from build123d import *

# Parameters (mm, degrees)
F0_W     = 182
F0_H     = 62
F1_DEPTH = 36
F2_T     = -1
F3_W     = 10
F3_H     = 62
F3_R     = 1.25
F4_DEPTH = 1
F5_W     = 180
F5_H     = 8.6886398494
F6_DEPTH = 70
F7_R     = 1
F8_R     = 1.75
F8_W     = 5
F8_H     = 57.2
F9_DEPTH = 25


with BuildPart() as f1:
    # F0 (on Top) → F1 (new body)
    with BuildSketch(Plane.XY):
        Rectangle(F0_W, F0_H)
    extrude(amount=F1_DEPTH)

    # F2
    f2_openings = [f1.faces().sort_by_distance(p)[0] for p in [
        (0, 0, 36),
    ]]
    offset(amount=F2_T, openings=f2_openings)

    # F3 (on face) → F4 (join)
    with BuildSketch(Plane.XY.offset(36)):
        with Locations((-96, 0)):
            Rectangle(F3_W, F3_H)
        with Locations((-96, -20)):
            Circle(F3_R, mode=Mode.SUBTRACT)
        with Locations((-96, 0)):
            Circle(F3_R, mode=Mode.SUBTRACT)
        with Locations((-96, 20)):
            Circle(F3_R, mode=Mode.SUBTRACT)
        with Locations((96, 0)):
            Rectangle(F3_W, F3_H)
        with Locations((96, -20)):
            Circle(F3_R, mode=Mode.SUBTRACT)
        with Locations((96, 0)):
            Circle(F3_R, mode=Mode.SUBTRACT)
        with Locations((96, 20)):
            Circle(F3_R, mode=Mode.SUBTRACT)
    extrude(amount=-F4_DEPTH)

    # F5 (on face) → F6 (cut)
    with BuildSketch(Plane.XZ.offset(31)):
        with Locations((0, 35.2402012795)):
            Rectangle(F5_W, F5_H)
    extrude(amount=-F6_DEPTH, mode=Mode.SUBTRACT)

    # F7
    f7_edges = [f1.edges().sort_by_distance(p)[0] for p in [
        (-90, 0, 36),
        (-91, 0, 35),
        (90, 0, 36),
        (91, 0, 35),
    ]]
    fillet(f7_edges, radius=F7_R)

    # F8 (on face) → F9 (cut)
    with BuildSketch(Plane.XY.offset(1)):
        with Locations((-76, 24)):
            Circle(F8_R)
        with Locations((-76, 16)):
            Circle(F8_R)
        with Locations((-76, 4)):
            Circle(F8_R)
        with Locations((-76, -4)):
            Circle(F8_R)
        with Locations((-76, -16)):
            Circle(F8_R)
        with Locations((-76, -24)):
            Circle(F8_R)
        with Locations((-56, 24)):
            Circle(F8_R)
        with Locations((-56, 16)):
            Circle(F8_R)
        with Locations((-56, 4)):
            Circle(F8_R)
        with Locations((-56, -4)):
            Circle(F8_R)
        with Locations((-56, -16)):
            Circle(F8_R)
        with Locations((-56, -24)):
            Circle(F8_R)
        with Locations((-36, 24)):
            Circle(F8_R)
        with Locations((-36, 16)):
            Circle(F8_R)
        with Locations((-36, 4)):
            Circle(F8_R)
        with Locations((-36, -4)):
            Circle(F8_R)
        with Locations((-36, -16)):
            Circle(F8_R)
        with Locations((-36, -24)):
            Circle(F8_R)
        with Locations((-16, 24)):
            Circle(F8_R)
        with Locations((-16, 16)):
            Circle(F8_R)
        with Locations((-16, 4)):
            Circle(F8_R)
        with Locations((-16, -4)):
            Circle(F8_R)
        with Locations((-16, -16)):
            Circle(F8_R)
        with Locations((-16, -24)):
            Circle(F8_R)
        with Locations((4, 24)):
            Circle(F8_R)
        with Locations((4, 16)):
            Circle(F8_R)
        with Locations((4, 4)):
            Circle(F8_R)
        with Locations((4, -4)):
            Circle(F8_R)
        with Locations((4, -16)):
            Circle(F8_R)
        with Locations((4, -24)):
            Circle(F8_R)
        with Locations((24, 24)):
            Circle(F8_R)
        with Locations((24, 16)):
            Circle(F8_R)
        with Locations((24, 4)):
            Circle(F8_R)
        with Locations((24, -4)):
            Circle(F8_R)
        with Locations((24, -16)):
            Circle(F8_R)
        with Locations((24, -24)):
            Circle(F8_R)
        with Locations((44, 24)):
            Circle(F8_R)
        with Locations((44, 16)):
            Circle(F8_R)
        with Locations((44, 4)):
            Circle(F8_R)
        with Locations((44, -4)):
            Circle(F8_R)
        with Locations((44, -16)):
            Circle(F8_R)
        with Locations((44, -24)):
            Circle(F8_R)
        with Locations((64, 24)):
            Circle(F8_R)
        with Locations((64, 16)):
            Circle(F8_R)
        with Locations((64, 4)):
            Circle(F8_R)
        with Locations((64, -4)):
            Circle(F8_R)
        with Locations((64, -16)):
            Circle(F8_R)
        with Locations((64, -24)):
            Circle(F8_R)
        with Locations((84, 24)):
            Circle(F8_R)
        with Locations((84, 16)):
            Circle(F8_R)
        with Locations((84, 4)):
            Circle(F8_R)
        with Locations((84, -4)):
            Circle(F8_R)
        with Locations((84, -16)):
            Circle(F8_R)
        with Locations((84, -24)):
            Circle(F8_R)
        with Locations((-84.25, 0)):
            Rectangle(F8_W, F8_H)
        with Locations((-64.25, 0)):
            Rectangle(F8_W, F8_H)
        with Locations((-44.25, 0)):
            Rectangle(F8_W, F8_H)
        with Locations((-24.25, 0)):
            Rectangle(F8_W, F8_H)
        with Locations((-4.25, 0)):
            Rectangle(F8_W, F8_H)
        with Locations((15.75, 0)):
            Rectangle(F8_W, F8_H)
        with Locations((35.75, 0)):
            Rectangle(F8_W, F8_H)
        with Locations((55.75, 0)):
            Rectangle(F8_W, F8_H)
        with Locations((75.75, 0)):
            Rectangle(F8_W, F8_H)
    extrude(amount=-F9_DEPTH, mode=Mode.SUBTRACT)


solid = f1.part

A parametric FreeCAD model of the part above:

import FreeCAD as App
import Part
import Sketcher
from FreeCAD import Vector
Q = App.Units.Quantity


def edges_at(feature, points):
    """Names of the edges that pass closest to the given points."""
    edges = feature.Shape.Edges
    near = lambda p: min(range(len(edges)), key=lambda i: edges[i].distToShape(Part.Vertex(*p))[0])
    return sorted({f"Edge{near(p) + 1}" for p in points})


def faces_at(feature, points):
    """Names of the faces that lie closest to the given points."""
    faces = feature.Shape.Faces
    near = lambda p: min(range(len(faces)), key=lambda i: faces[i].distToShape(Part.Vertex(*p))[0])
    return sorted({f"Face{near(p) + 1}" for p in points})


def add_polygon(sketch, points):
    """Adds a closed chain of lines whose ends are joined by coincident constraints."""
    first, n = sketch.GeometryCount, len(points)
    for a, b in zip(points, points[1:] + points[:1]):
        sketch.addGeometry(Part.LineSegment(App.Vector(*a, 0), App.Vector(*b, 0)), False)
    for i in range(n):
        sketch.addConstraint(Sketcher.Constraint("Coincident", first + i, 2, first + (i + 1) % n, 1))

doc = App.newDocument("Part")
body = doc.addObject("PartDesign::Body", "Body")

# Sketch on XY plane
sketch1 = body.newObject("Sketcher::SketchObject", "Sketch")
sketch1.AttachmentSupport = (doc.getObject("XY_Plane"), [""])
sketch1.MapMode = "FlatFace"
add_polygon(sketch1, [(-91, 31), (-91, -31), (91, -31), (91, 31)])  # lines 0-3
sketch1.addConstraint([
    Sketcher.Constraint("Vertical", 0),
    Sketcher.Constraint("Horizontal", 1),
    Sketcher.Constraint("Vertical", 2),
    Sketcher.Constraint("Horizontal", 3),
    Sketcher.Constraint("Symmetric", 0, 2, 2, 2, -1, 1),
    Sketcher.Constraint("DistanceX", 1, 1, 1, 2, Q("182 mm")),
    Sketcher.Constraint("DistanceY", 0, 2, 0, 1, Q("62 mm")),
])
pad1 = body.newObject("PartDesign::Pad", "Pad")
pad1.Profile = sketch1
pad1.Length = 36
doc.recompute()

thickness = body.newObject("PartDesign::Thickness", "Thickness")
thickness.Base = (pad1, faces_at(pad1, [(0, 0, 36)]))
thickness.Value = 1
thickness.Reversed = True
thickness.Join = "Arc"

# Sketch on XY plane
sketch2 = body.newObject("Sketcher::SketchObject", "Sketch001")
sketch2.AttachmentSupport = (doc.getObject("XY_Plane"), [""])
sketch2.MapMode = "FlatFace"
sketch2.AttachmentOffset = App.Placement(Vector(0, 0, 36), App.Rotation())
add_polygon(sketch2, [(-101, 31), (-101, -31), (-91, -31), (-91, 31)])  # lines 0-3
sketch2.addGeometry(Part.Circle(Vector(-96, -20, 0), Vector(0, 0, 1), 1.25), False)  # 4
sketch2.addGeometry(Part.Circle(Vector(-96, 0, 0), Vector(0, 0, 1), 1.25), False)  # 5
sketch2.addGeometry(Part.Circle(Vector(-96, 20, 0), Vector(0, 0, 1), 1.25), False)  # 6
add_polygon(sketch2, [(91, 31), (91, -31), (101, -31), (101, 31)])  # lines 7-10
sketch2.addGeometry(Part.Circle(Vector(96, -20, 0), Vector(0, 0, 1), 1.25), False)  # 11
sketch2.addGeometry(Part.Circle(Vector(96, 0, 0), Vector(0, 0, 1), 1.25), False)  # 12
sketch2.addGeometry(Part.Circle(Vector(96, 20, 0), Vector(0, 0, 1), 1.25), False)  # 13
sketch2.addConstraint([
    Sketcher.Constraint("Vertical", 0),
    Sketcher.Constraint("Horizontal", 1),
    Sketcher.Constraint("Vertical", 2),
    Sketcher.Constraint("Horizontal", 3),
    Sketcher.Constraint("Vertical", 7),
    Sketcher.Constraint("Horizontal", 8),
    Sketcher.Constraint("Vertical", 9),
    Sketcher.Constraint("Horizontal", 10),
    Sketcher.Constraint("Equal", 4, 5),
    Sketcher.Constraint("Equal", 5, 6),
    Sketcher.Constraint("Equal", 6, 11),
    Sketcher.Constraint("Equal", 11, 12),
    Sketcher.Constraint("Equal", 12, 13),
    Sketcher.Constraint("Symmetric", 6, 3, 11, 3, -1, 1),
    Sketcher.Constraint("Symmetric", 5, 3, 12, 3, -1, 1),
    Sketcher.Constraint("Symmetric", 4, 3, 13, 3, -1, 1),
    Sketcher.Constraint("Symmetric", 2, 2, 7, 2, -1, 1),
    Sketcher.Constraint("Symmetric", 0, 2, 9, 2, -1, 1),
    Sketcher.Constraint("Symmetric", 4, 3, 11, 3, -2),
    Sketcher.Constraint("PointOnObject", 5, 3, -1),
    Sketcher.Constraint("Horizontal", 1, 2, 7, 2),
    Sketcher.Constraint("Vertical", 4, 3, 5, 3),
    Sketcher.Constraint("Diameter", 4, Q("2.5 mm")),
    Sketcher.Constraint("DistanceX", 1, 1, 1, 2, Q("10 mm")),
    Sketcher.Constraint("DistanceY", 0, 2, 0, 1, Q("62 mm")),
    Sketcher.Constraint("DistanceX", 4, 3, -1, 1, Q("96 mm")),
    Sketcher.Constraint("DistanceY", 4, 3, -1, 1, Q("20 mm")),
    Sketcher.Constraint("DistanceX", 0, 2, -1, 1, Q("101 mm")),
])
pad2 = body.newObject("PartDesign::Pad", "Pad001")
pad2.Profile = sketch2
pad2.Length = 1
pad2.Reversed = True

# Sketch on XZ plane
sketch3 = body.newObject("Sketcher::SketchObject", "Sketch002")
sketch3.AttachmentSupport = (doc.getObject("XZ_Plane"), [""])
sketch3.MapMode = "FlatFace"
sketch3.AttachmentOffset = App.Placement(Vector(0, 0, 31), App.Rotation())
add_polygon(sketch3, [(-90, 39.584521), (-90, 30.895881), (90, 30.895881), (90, 39.584521)])  # lines 0-3
sketch3.addConstraint([
    Sketcher.Constraint("Vertical", 0),
    Sketcher.Constraint("Horizontal", 1),
    Sketcher.Constraint("Vertical", 2),
    Sketcher.Constraint("Horizontal", 3),
    Sketcher.Constraint("DistanceX", 1, 1, 1, 2, Q("180 mm")),
    Sketcher.Constraint("DistanceX", 0, 2, -1, 1, Q("90 mm")),
    Sketcher.Constraint("DistanceY", 0, 2, 0, 1, Q("8.68864 mm")),
    Sketcher.Constraint("DistanceY", -1, 1, 0, 2, Q("30.895881 mm")),
])
pocket1 = body.newObject("PartDesign::Pocket", "Pocket")
pocket1.Profile = sketch3
pocket1.Length = 70
doc.recompute()

fillet = body.newObject("PartDesign::Fillet", "Fillet")
fillet.Base = (pocket1, edges_at(pocket1, [
    (-90, 0, 36),
    (-91, 0, 35),
    (90, 0, 36),
    (91, 0, 35),
]))
fillet.Radius = 1

# Sketch on XY plane
sketch4 = body.newObject("Sketcher::SketchObject", "Sketch003")
sketch4.AttachmentSupport = (doc.getObject("XY_Plane"), [""])
sketch4.MapMode = "FlatFace"
sketch4.AttachmentOffset = App.Placement(Vector(0, 0, 1), App.Rotation())
sketch4.addGeometry(Part.Circle(Vector(-76, 24, 0), Vector(0, 0, 1), 1.75), False)  # 0
sketch4.addGeometry(Part.Circle(Vector(-76, 16, 0), Vector(0, 0, 1), 1.75), False)  # 1
sketch4.addGeometry(Part.Circle(Vector(-76, 4, 0), Vector(0, 0, 1), 1.75), False)  # 2
sketch4.addGeometry(Part.Circle(Vector(-76, -4, 0), Vector(0, 0, 1), 1.75), False)  # 3
sketch4.addGeometry(Part.Circle(Vector(-76, -16, 0), Vector(0, 0, 1), 1.75), False)  # 4
sketch4.addGeometry(Part.Circle(Vector(-76, -24, 0), Vector(0, 0, 1), 1.75), False)  # 5
sketch4.addGeometry(Part.Circle(Vector(-56, 24, 0), Vector(0, 0, 1), 1.75), False)  # 6
sketch4.addGeometry(Part.Circle(Vector(-56, 16, 0), Vector(0, 0, 1), 1.75), False)  # 7
sketch4.addGeometry(Part.Circle(Vector(-56, 4, 0), Vector(0, 0, 1), 1.75), False)  # 8
sketch4.addGeometry(Part.Circle(Vector(-56, -4, 0), Vector(0, 0, 1), 1.75), False)  # 9
sketch4.addGeometry(Part.Circle(Vector(-56, -16, 0), Vector(0, 0, 1), 1.75), False)  # 10
sketch4.addGeometry(Part.Circle(Vector(-56, -24, 0), Vector(0, 0, 1), 1.75), False)  # 11
sketch4.addGeometry(Part.Circle(Vector(-36, 24, 0), Vector(0, 0, 1), 1.75), False)  # 12
sketch4.addGeometry(Part.Circle(Vector(-36, 16, 0), Vector(0, 0, 1), 1.75), False)  # 13
sketch4.addGeometry(Part.Circle(Vector(-36, 4, 0), Vector(0, 0, 1), 1.75), False)  # 14
sketch4.addGeometry(Part.Circle(Vector(-36, -4, 0), Vector(0, 0, 1), 1.75), False)  # 15
sketch4.addGeometry(Part.Circle(Vector(-36, -16, 0), Vector(0, 0, 1), 1.75), False)  # 16
sketch4.addGeometry(Part.Circle(Vector(-36, -24, 0), Vector(0, 0, 1), 1.75), False)  # 17
sketch4.addGeometry(Part.Circle(Vector(-16, 24, 0), Vector(0, 0, 1), 1.75), False)  # 18
sketch4.addGeometry(Part.Circle(Vector(-16, 16, 0), Vector(0, 0, 1), 1.75), False)  # 19
sketch4.addGeometry(Part.Circle(Vector(-16, 4, 0), Vector(0, 0, 1), 1.75), False)  # 20
sketch4.addGeometry(Part.Circle(Vector(-16, -4, 0), Vector(0, 0, 1), 1.75), False)  # 21
sketch4.addGeometry(Part.Circle(Vector(-16, -16, 0), Vector(0, 0, 1), 1.75), False)  # 22
sketch4.addGeometry(Part.Circle(Vector(-16, -24, 0), Vector(0, 0, 1), 1.75), False)  # 23
sketch4.addGeometry(Part.Circle(Vector(4, 24, 0), Vector(0, 0, 1), 1.75), False)  # 24
sketch4.addGeometry(Part.Circle(Vector(4, 16, 0), Vector(0, 0, 1), 1.75), False)  # 25
sketch4.addGeometry(Part.Circle(Vector(4, 4, 0), Vector(0, 0, 1), 1.75), False)  # 26
sketch4.addGeometry(Part.Circle(Vector(4, -4, 0), Vector(0, 0, 1), 1.75), False)  # 27
sketch4.addGeometry(Part.Circle(Vector(4, -16, 0), Vector(0, 0, 1), 1.75), False)  # 28
sketch4.addGeometry(Part.Circle(Vector(4, -24, 0), Vector(0, 0, 1), 1.75), False)  # 29
sketch4.addGeometry(Part.Circle(Vector(24, 24, 0), Vector(0, 0, 1), 1.75), False)  # 30
sketch4.addGeometry(Part.Circle(Vector(24, 16, 0), Vector(0, 0, 1), 1.75), False)  # 31
sketch4.addGeometry(Part.Circle(Vector(24, 4, 0), Vector(0, 0, 1), 1.75), False)  # 32
sketch4.addGeometry(Part.Circle(Vector(24, -4, 0), Vector(0, 0, 1), 1.75), False)  # 33
sketch4.addGeometry(Part.Circle(Vector(24, -16, 0), Vector(0, 0, 1), 1.75), False)  # 34
sketch4.addGeometry(Part.Circle(Vector(24, -24, 0), Vector(0, 0, 1), 1.75), False)  # 35
sketch4.addGeometry(Part.Circle(Vector(44, 24, 0), Vector(0, 0, 1), 1.75), False)  # 36
sketch4.addGeometry(Part.Circle(Vector(44, 16, 0), Vector(0, 0, 1), 1.75), False)  # 37
sketch4.addGeometry(Part.Circle(Vector(44, 4, 0), Vector(0, 0, 1), 1.75), False)  # 38
sketch4.addGeometry(Part.Circle(Vector(44, -4, 0), Vector(0, 0, 1), 1.75), False)  # 39
sketch4.addGeometry(Part.Circle(Vector(44, -16, 0), Vector(0, 0, 1), 1.75), False)  # 40
sketch4.addGeometry(Part.Circle(Vector(44, -24, 0), Vector(0, 0, 1), 1.75), False)  # 41
sketch4.addGeometry(Part.Circle(Vector(64, 24, 0), Vector(0, 0, 1), 1.75), False)  # 42
sketch4.addGeometry(Part.Circle(Vector(64, 16, 0), Vector(0, 0, 1), 1.75), False)  # 43
sketch4.addGeometry(Part.Circle(Vector(64, 4, 0), Vector(0, 0, 1), 1.75), False)  # 44
sketch4.addGeometry(Part.Circle(Vector(64, -4, 0), Vector(0, 0, 1), 1.75), False)  # 45
sketch4.addGeometry(Part.Circle(Vector(64, -16, 0), Vector(0, 0, 1), 1.75), False)  # 46
sketch4.addGeometry(Part.Circle(Vector(64, -24, 0), Vector(0, 0, 1), 1.75), False)  # 47
sketch4.addGeometry(Part.Circle(Vector(84, 24, 0), Vector(0, 0, 1), 1.75), False)  # 48
sketch4.addGeometry(Part.Circle(Vector(84, 16, 0), Vector(0, 0, 1), 1.75), False)  # 49
sketch4.addGeometry(Part.Circle(Vector(84, 4, 0), Vector(0, 0, 1), 1.75), False)  # 50
sketch4.addGeometry(Part.Circle(Vector(84, -4, 0), Vector(0, 0, 1), 1.75), False)  # 51
sketch4.addGeometry(Part.Circle(Vector(84, -16, 0), Vector(0, 0, 1), 1.75), False)  # 52
sketch4.addGeometry(Part.Circle(Vector(84, -24, 0), Vector(0, 0, 1), 1.75), False)  # 53
add_polygon(sketch4, [(-86.75, 28.6), (-86.75, -28.6), (-81.75, -28.6), (-81.75, 28.6)])  # lines 54-57
add_polygon(sketch4, [(-66.75, 28.6), (-66.75, -28.6), (-61.75, -28.6), (-61.75, 28.6)])  # lines 58-61
add_polygon(sketch4, [(-46.75, 28.6), (-46.75, -28.6), (-41.75, -28.6), (-41.75, 28.6)])  # lines 62-65
add_polygon(sketch4, [(-26.75, 28.6), (-26.75, -28.6), (-21.75, -28.6), (-21.75, 28.6)])  # lines 66-69
add_polygon(sketch4, [(-6.75, 28.6), (-6.75, -28.6), (-1.75, -28.6), (-1.75, 28.6)])  # lines 70-73
add_polygon(sketch4, [(13.25, 28.6), (13.25, -28.6), (18.25, -28.6), (18.25, 28.6)])  # lines 74-77
add_polygon(sketch4, [(33.25, 28.6), (33.25, -28.6), (38.25, -28.6), (38.25, 28.6)])  # lines 78-81
add_polygon(sketch4, [(53.25, 28.6), (53.25, -28.6), (58.25, -28.6), (58.25, 28.6)])  # lines 82-85
add_polygon(sketch4, [(73.25, 28.6), (73.25, -28.6), (78.25, -28.6), (78.25, 28.6)])  # lines 86-89
sketch4.addConstraint([
    Sketcher.Constraint("Vertical", 54),
    Sketcher.Constraint("Horizontal", 55),
    Sketcher.Constraint("Vertical", 56),
    Sketcher.Constraint("Horizontal", 57),
    Sketcher.Constraint("Vertical", 58),
    Sketcher.Constraint("Horizontal", 59),
    Sketcher.Constraint("Vertical", 60),
    Sketcher.Constraint("Horizontal", 61),
    Sketcher.Constraint("Vertical", 62),
    Sketcher.Constraint("Horizontal", 63),
    Sketcher.Constraint("Vertical", 64),
    Sketcher.Constraint("Horizontal", 65),
    Sketcher.Constraint("Vertical", 66),
    Sketcher.Constraint("Horizontal", 67),
    Sketcher.Constraint("Vertical", 68),
    Sketcher.Constraint("Horizontal", 69),
    Sketcher.Constraint("Vertical", 70),
    Sketcher.Constraint("Horizontal", 71),
    Sketcher.Constraint("Vertical", 72),
    Sketcher.Constraint("Horizontal", 73),
    Sketcher.Constraint("Vertical", 74),
    Sketcher.Constraint("Horizontal", 75),
    Sketcher.Constraint("Vertical", 76),
    Sketcher.Constraint("Horizontal", 77),
    Sketcher.Constraint("Vertical", 78),
    Sketcher.Constraint("Horizontal", 79),
    Sketcher.Constraint("Vertical", 80),
    Sketcher.Constraint("Horizontal", 81),
    Sketcher.Constraint("Vertical", 82),
    Sketcher.Constraint("Horizontal", 83),
    Sketcher.Constraint("Vertical", 84),
    Sketcher.Constraint("Horizontal", 85),
    Sketcher.Constraint("Vertical", 86),
    Sketcher.Constraint("Horizontal", 87),
    Sketcher.Constraint("Vertical", 88),
    Sketcher.Constraint("Horizontal", 89),
    Sketcher.Constraint("Equal", 0, 1),
    Sketcher.Constraint("Equal", 1, 2),
    Sketcher.Constraint("Equal", 2, 3),
    Sketcher.Constraint("Equal", 3, 4),
    Sketcher.Constraint("Equal", 4, 5),
    Sketcher.Constraint("Equal", 5, 6),
    Sketcher.Constraint("Equal", 6, 7),
    Sketcher.Constraint("Equal", 7, 8),
    Sketcher.Constraint("Equal", 8, 9),
    Sketcher.Constraint("Equal", 9, 10),
    Sketcher.Constraint("Equal", 10, 11),
    Sketcher.Constraint("Equal", 11, 12),
    Sketcher.Constraint("Equal", 12, 13),
    Sketcher.Constraint("Equal", 13, 14),
    Sketcher.Constraint("Equal", 14, 15),
    Sketcher.Constraint("Equal", 15, 16),
    Sketcher.Constraint("Equal", 16, 17),
    Sketcher.Constraint("Equal", 17, 18),
    Sketcher.Constraint("Equal", 18, 19),
    Sketcher.Constraint("Equal", 19, 20),
    Sketcher.Constraint("Equal", 20, 21),
    Sketcher.Constraint("Equal", 21, 22),
    Sketcher.Constraint("Equal", 22, 23),
    Sketcher.Constraint("Equal", 23, 24),
    Sketcher.Constraint("Equal", 24, 25),
    Sketcher.Constraint("Equal", 25, 26),
    Sketcher.Constraint("Equal", 26, 27),
    Sketcher.Constraint("Equal", 27, 28),
    Sketcher.Constraint("Equal", 28, 29),
    Sketcher.Constraint("Equal", 29, 30),
    Sketcher.Constraint("Equal", 30, 31),
    Sketcher.Constraint("Equal", 31, 32),
    Sketcher.Constraint("Equal", 32, 33),
    Sketcher.Constraint("Equal", 33, 34),
    Sketcher.Constraint("Equal", 34, 35),
    Sketcher.Constraint("Equal", 35, 36),
    Sketcher.Constraint("Equal", 36, 37),
    Sketcher.Constraint("Equal", 37, 38),
    Sketcher.Constraint("Equal", 38, 39),
    Sketcher.Constraint("Equal", 39, 40),
    Sketcher.Constraint("Equal", 40, 41),
    Sketcher.Constraint("Equal", 41, 42),
    Sketcher.Constraint("Equal", 42, 43),
    Sketcher.Constraint("Equal", 43, 44),
    Sketcher.Constraint("Equal", 44, 45),
    Sketcher.Constraint("Equal", 45, 46),
    Sketcher.Constraint("Equal", 46, 47),
    Sketcher.Constraint("Equal", 47, 48),
    Sketcher.Constraint("Equal", 48, 49),
    Sketcher.Constraint("Equal", 49, 50),
    Sketcher.Constraint("Equal", 50, 51),
    Sketcher.Constraint("Equal", 51, 52),
    Sketcher.Constraint("Equal", 52, 53),
    Sketcher.Constraint("Symmetric", 2, 3, 3, 3, -1),
    Sketcher.Constraint("Symmetric", 1, 3, 4, 3, -1),
    Sketcher.Constraint("Symmetric", 0, 3, 5, 3, -1),
    Sketcher.Constraint("Symmetric", 8, 3, 9, 3, -1),
    Sketcher.Constraint("Symmetric", 7, 3, 10, 3, -1),
    Sketcher.Constraint("Symmetric", 6, 3, 11, 3, -1),
    Sketcher.Constraint("Symmetric", 14, 3, 15, 3, -1),
    Sketcher.Constraint("Symmetric", 13, 3, 16, 3, -1),
    Sketcher.Constraint("Symmetric", 12, 3, 17, 3, -1),
    Sketcher.Constraint("Symmetric", 20, 3, 21, 3, -1),
    Sketcher.Constraint("Symmetric", 19, 3, 22, 3, -1),
    Sketcher.Constraint("Symmetric", 18, 3, 23, 3, -1),
    Sketcher.Constraint("Symmetric", 26, 3, 27, 3, -1),
    Sketcher.Constraint("Symmetric", 25, 3, 28, 3, -1),
    Sketcher.Constraint("Symmetric", 24, 3, 29, 3, -1),
    Sketcher.Constraint("Symmetric", 32, 3, 33, 3, -1),
    Sketcher.Constraint("Symmetric", 31, 3, 34, 3, -1),
    Sketcher.Constraint("Symmetric", 30, 3, 35, 3, -1),
    Sketcher.Constraint("Symmetric", 38, 3, 39, 3, -1),
    Sketcher.Constraint("Symmetric", 37, 3, 40, 3, -1),
    Sketcher.Constraint("Symmetric", 36, 3, 41, 3, -1),
    Sketcher.Constraint("Symmetric", 44, 3, 45, 3, -1),
    Sketcher.Constraint("Symmetric", 43, 3, 46, 3, -1),
    Sketcher.Constraint("Symmetric", 42, 3, 47, 3, -1),
    Sketcher.Constraint("Symmetric", 50, 3, 51, 3, -1),
    Sketcher.Constraint("Symmetric", 49, 3, 52, 3, -1),
    Sketcher.Constraint("Symmetric", 48, 3, 53, 3, -1),
    Sketcher.Constraint("Horizontal", 0, 3, 6, 3),
    Sketcher.Constraint("Horizontal", 1, 3, 7, 3),
    Sketcher.Constraint("Horizontal", 2, 3, 8, 3),
    Sketcher.Constraint("Horizontal", 6, 3, 12, 3),
    Sketcher.Constraint("Horizontal", 7, 3, 13, 3),
    Sketcher.Constraint("Horizontal", 8, 3, 14, 3),
    Sketcher.Constraint("Horizontal", 12, 3, 18, 3),
    Sketcher.Constraint("Horizontal", 13, 3, 19, 3),
    Sketcher.Constraint("Horizontal", 14, 3, 20, 3),
    Sketcher.Constraint("Horizontal", 18, 3, 24, 3),
    Sketcher.Constraint("Horizontal", 19, 3, 25, 3),
    Sketcher.Constraint("Horizontal", 20, 3, 26, 3),
    Sketcher.Constraint("Horizontal", 24, 3, 30, 3),
    Sketcher.Constraint("Horizontal", 25, 3, 31, 3),
    Sketcher.Constraint("Horizontal", 26, 3, 32, 3),
    Sketcher.Constraint("Horizontal", 30, 3, 36, 3),
    Sketcher.Constraint("Horizontal", 31, 3, 37, 3),
    Sketcher.Constraint("Horizontal", 32, 3, 38, 3),
    Sketcher.Constraint("Horizontal", 36, 3, 42, 3),
    Sketcher.Constraint("Horizontal", 37, 3, 43, 3),
    Sketcher.Constraint("Horizontal", 38, 3, 44, 3),
    Sketcher.Constraint("Horizontal", 42, 3, 48, 3),
    Sketcher.Constraint("Horizontal", 43, 3, 49, 3),
    Sketcher.Constraint("Horizontal", 44, 3, 50, 3),
    Sketcher.Constraint("Horizontal", 55, 2, 58, 2),
    Sketcher.Constraint("Horizontal", 57, 2, 60, 2),
    Sketcher.Constraint("Horizontal", 59, 2, 62, 2),
    Sketcher.Constraint("Horizontal", 61, 2, 64, 2),
    Sketcher.Constraint("Horizontal", 63, 2, 66, 2),
    Sketcher.Constraint("Horizontal", 65, 2, 68, 2),
    Sketcher.Constraint("Horizontal", 67, 2, 70, 2),
    Sketcher.Constraint("Horizontal", 69, 2, 72, 2),
    Sketcher.Constraint("Horizontal", 71, 2, 74, 2),
    Sketcher.Constraint("Horizontal", 73, 2, 76, 2),
    Sketcher.Constraint("Horizontal", 75, 2, 78, 2),
    Sketcher.Constraint("Horizontal", 77, 2, 80, 2),
    Sketcher.Constraint("Horizontal", 79, 2, 82, 2),
    Sketcher.Constraint("Horizontal", 81, 2, 84, 2),
    Sketcher.Constraint("Horizontal", 83, 2, 86, 2),
    Sketcher.Constraint("Horizontal", 85, 2, 88, 2),
    Sketcher.Constraint("Vertical", 0, 3, 1, 3),
    Sketcher.Constraint("Vertical", 1, 3, 2, 3),
    Sketcher.Constraint("Vertical", 6, 3, 7, 3),
    Sketcher.Constraint("Vertical", 7, 3, 8, 3),
    Sketcher.Constraint("Vertical", 12, 3, 13, 3),
    Sketcher.Constraint("Vertical", 13, 3, 14, 3),
    Sketcher.Constraint("Vertical", 18, 3, 19, 3),
    Sketcher.Constraint("Vertical", 19, 3, 20, 3),
    Sketcher.Constraint("Vertical", 24, 3, 25, 3),
    Sketcher.Constraint("Vertical", 25, 3, 26, 3),
    Sketcher.Constraint("Vertical", 30, 3, 31, 3),
    Sketcher.Constraint("Vertical", 31, 3, 32, 3),
    Sketcher.Constraint("Vertical", 36, 3, 37, 3),
    Sketcher.Constraint("Vertical", 37, 3, 38, 3),
    Sketcher.Constraint("Vertical", 42, 3, 43, 3),
    Sketcher.Constraint("Vertical", 43, 3, 44, 3),
    Sketcher.Constraint("Vertical", 48, 3, 49, 3),
    Sketcher.Constraint("Vertical", 49, 3, 50, 3),
    Sketcher.Constraint("Equal", 57, 59),
    Sketcher.Constraint("Equal", 61, 63),
    Sketcher.Constraint("Equal", 65, 67),
    Sketcher.Constraint("Equal", 69, 71),
    Sketcher.Constraint("Equal", 73, 75),
    Sketcher.Constraint("Equal", 77, 79),
    Sketcher.Constraint("Equal", 81, 83),
    Sketcher.Constraint("Equal", 85, 87),
    Sketcher.Constraint("Diameter", 0, Q("3.5 mm")),
    Sketcher.Constraint("DistanceX", 55, 1, 55, 2, Q("5 mm")),
    Sketcher.Constraint("DistanceY", 54, 2, 54, 1, Q("57.2 mm")),
    Sketcher.Constraint("DistanceX", 0, 3, -1, 1, Q("76 mm")),
    Sketcher.Constraint("DistanceY", -1, 1, 0, 3, Q("24 mm")),
    Sketcher.Constraint("DistanceY", -1, 1, 1, 3, Q("16 mm")),
    Sketcher.Constraint("DistanceY", -1, 1, 2, 3, Q("4 mm")),
    Sketcher.Constraint("DistanceX", 6, 3, -1, 1, Q("56 mm")),
    Sketcher.Constraint("DistanceX", 12, 3, -1, 1, Q("36 mm")),
    Sketcher.Constraint("DistanceX", 18, 3, -1, 1, Q("16 mm")),
    Sketcher.Constraint("DistanceX", -1, 1, 24, 3, Q("4 mm")),
    Sketcher.Constraint("DistanceX", -1, 1, 30, 3, Q("24 mm")),
    Sketcher.Constraint("DistanceX", -1, 1, 36, 3, Q("44 mm")),
    Sketcher.Constraint("DistanceX", -1, 1, 42, 3, Q("64 mm")),
    Sketcher.Constraint("DistanceX", -1, 1, 48, 3, Q("84 mm")),
    Sketcher.Constraint("DistanceY", 54, 2, -1, 1, Q("28.6 mm")),
    Sketcher.Constraint("DistanceX", 54, 2, -1, 1, Q("86.75 mm")),
    Sketcher.Constraint("DistanceX", 58, 2, -1, 1, Q("66.75 mm")),
    Sketcher.Constraint("DistanceX", 62, 2, -1, 1, Q("46.75 mm")),
    Sketcher.Constraint("DistanceX", 66, 2, -1, 1, Q("26.75 mm")),
    Sketcher.Constraint("DistanceX", 70, 2, -1, 1, Q("6.75 mm")),
    Sketcher.Constraint("DistanceX", -1, 1, 74, 2, Q("13.25 mm")),
    Sketcher.Constraint("DistanceX", -1, 1, 78, 2, Q("33.25 mm")),
    Sketcher.Constraint("DistanceX", -1, 1, 82, 2, Q("53.25 mm")),
    Sketcher.Constraint("DistanceX", -1, 1, 86, 2, Q("73.25 mm")),
])
pocket2 = body.newObject("PartDesign::Pocket", "Pocket001")
pocket2.Profile = sketch4
pocket2.Length = 25

doc.recompute()
